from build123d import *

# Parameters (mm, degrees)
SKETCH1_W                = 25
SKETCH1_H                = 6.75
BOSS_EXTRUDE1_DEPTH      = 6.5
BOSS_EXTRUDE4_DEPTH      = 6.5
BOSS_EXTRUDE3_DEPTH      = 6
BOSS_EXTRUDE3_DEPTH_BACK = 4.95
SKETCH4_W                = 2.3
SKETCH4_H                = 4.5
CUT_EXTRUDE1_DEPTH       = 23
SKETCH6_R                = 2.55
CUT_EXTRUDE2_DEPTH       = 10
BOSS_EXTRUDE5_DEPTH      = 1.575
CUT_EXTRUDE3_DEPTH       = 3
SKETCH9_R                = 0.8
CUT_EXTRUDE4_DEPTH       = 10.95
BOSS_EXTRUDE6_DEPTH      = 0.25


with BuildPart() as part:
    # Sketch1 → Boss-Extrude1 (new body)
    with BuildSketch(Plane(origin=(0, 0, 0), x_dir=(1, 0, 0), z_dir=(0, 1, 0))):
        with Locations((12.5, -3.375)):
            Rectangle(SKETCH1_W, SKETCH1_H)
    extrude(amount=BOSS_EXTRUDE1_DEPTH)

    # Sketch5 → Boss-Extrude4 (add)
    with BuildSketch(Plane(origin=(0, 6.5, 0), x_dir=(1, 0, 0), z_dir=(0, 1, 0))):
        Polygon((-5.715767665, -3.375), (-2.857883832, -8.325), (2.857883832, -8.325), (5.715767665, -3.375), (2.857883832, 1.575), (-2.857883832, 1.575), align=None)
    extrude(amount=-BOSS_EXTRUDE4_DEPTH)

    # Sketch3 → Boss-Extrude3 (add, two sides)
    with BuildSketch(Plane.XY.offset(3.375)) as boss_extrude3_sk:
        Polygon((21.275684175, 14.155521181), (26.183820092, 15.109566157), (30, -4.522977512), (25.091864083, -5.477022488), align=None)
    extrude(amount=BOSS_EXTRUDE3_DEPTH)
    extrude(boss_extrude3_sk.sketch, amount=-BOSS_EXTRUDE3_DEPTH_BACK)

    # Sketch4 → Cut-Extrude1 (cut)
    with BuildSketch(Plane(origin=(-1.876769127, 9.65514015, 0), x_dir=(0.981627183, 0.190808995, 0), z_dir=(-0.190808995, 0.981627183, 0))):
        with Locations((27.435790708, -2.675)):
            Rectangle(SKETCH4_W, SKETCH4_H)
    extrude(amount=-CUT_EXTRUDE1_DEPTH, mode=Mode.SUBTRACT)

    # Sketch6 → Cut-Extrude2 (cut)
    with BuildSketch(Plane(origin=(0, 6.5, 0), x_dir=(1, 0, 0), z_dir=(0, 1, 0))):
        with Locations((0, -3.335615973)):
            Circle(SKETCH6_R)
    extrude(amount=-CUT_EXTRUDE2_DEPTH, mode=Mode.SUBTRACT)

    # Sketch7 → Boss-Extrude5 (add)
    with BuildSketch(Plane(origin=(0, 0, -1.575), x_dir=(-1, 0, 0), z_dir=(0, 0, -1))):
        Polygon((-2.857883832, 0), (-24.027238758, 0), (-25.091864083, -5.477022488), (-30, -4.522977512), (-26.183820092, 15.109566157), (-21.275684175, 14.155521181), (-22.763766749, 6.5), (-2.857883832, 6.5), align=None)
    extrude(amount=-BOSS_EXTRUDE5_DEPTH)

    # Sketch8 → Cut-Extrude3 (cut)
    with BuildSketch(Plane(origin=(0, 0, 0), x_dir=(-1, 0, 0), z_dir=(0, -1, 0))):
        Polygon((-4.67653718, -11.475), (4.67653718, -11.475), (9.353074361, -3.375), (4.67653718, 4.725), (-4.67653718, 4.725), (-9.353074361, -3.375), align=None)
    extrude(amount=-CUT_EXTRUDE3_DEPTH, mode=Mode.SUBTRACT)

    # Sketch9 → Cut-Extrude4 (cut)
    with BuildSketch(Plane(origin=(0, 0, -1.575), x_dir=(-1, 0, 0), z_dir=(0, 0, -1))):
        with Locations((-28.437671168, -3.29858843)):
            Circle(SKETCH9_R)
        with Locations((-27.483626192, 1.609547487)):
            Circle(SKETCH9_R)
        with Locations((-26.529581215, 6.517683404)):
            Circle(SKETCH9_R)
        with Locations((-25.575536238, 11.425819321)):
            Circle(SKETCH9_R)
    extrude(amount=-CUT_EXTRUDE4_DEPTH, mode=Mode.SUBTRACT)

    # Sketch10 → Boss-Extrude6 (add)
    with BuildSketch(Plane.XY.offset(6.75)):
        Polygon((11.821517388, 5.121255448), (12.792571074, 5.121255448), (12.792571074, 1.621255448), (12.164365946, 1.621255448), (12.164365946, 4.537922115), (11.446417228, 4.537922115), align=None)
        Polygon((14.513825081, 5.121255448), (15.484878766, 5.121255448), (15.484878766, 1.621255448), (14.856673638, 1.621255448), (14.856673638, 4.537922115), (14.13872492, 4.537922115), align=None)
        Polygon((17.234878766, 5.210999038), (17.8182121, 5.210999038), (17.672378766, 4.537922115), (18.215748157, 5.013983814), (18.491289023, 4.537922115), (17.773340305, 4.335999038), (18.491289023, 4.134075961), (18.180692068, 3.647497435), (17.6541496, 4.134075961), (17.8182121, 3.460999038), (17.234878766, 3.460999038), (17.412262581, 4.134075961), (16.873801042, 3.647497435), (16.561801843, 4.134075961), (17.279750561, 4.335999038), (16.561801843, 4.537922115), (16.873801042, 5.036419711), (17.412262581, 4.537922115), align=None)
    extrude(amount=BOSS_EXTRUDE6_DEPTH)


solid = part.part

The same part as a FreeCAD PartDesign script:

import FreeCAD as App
import Part
import Sketcher
from FreeCAD import Vector
Q = App.Units.Quantity

doc = App.newDocument("Part")
params = doc.addObject("Spreadsheet::Sheet", "Params")
for row, (alias, value) in enumerate([
    ("sketch1_width", "25 mm"),
    ("sketch1_height", "6.75 mm"),
    ("pad1_length", "6.5 mm"),
    ("pad2_length", "6.5 mm"),
    ("sketch3_length", "5 mm"),
    ("sketch3_length2", "20 mm"),
    ("pad3_length", "6 mm"),
    ("pad3_length2", "4.95 mm"),
    ("sketch4_width", "2.3 mm"),
    ("sketch4_height", "4.5 mm"),
    ("pocket1_length", "23 mm"),
    ("sketch5_diameter", "5.1 mm"),
    ("pocket2_length", "10 mm"),
    ("sketch6_length", "5 mm"),
    ("sketch6_length2", "20 mm"),
    ("sketch6_height", "6.5 mm"),
    ("pad4_length", "1.575 mm"),
    ("pocket3_length", "3 mm"),
    ("sketch8_diameter", "1.6 mm"),
    ("pocket4_length", "10.95 mm"),
    ("sketch9_height", "3.5 mm"),
    ("pad5_length", "0.25 mm"),
], start=1):
    params.set(f"A{row}", alias)
    params.set(f"B{row}", "=" + value)
    params.setAlias(f"B{row}", alias)

body = doc.addObject("PartDesign::Body", "Body")

sketch1 = doc.addObject("Sketcher::SketchObject", "Sketch")
body.addObject(sketch1)
sketch1.AttachmentSupport = (doc.XZ_Plane, [""])
sketch1.MapMode = "FlatFace"
sketch1.addGeometry(Part.LineSegment(Vector(0, 0, 0), Vector(0, 7, 0)), False)
sketch1.addGeometry(Part.LineSegment(Vector(0, 7, 0), Vector(25, 7, 0)), False)
sketch1.addGeometry(Part.LineSegment(Vector(25, 7, 0), Vector(25, 0, 0)), False)
sketch1.addGeometry(Part.LineSegment(Vector(25, 0, 0), Vector(0, 0, 0)), False)
sketch1.addConstraint(Sketcher.Constraint("Coincident", 0, 2, 1, 1))
sketch1.addConstraint(Sketcher.Constraint("Coincident", 1, 2, 2, 1))
sketch1.addConstraint(Sketcher.Constraint("Coincident", 2, 2, 3, 1))
sketch1.addConstraint(Sketcher.Constraint("Coincident", 3, 2, 0, 1))
sketch1.addConstraint(Sketcher.Constraint("Vertical", 0))
sketch1.addConstraint(Sketcher.Constraint("Horizontal", 1))
sketch1.addConstraint(Sketcher.Constraint("Vertical", 2))
sketch1.addConstraint(Sketcher.Constraint("Horizontal", 3))
sketch1.addConstraint(Sketcher.Constraint("Coincident", 3, 2, -1, 1))
sketch1.addConstraint(Sketcher.Constraint("DistanceX", 1, 1, 1, 2, Q("25 mm")))
sketch1.addConstraint(Sketcher.Constraint("DistanceY", 0, 1, 0, 2, Q("6.75 mm")))
sketch1.setExpression("Constraints[9]", "Params.sketch1_width")
sketch1.setExpression("Constraints[10]", "Params.sketch1_height")
pad1 = doc.addObject("PartDesign::Pad", "Pad")
body.addObject(pad1)
pad1.Profile = sketch1
pad1.setExpression("Length", "Params.pad1_length")
pad1.Reversed = True

sketch2 = doc.addObject("Sketcher::SketchObject", "Sketch001")
body.addObject(sketch2)
sketch2.AttachmentSupport = (doc.XZ_Plane, [""])
sketch2.MapMode = "FlatFace"
sketch2.AttachmentOffset = App.Placement(Vector(0, 0, -6.5), App.Rotation())
sketch2.addGeometry(Part.LineSegment(Vector(-6, 3, 0), Vector(-3, 8, 0)), False)
sketch2.addGeometry(Part.LineSegment(Vector(-3, 8, 0), Vector(3, 8, 0)), False)
sketch2.addGeometry(Part.LineSegment(Vector(3, 8, 0), Vector(6, 3, 0)), False)
sketch2.addGeometry(Part.LineSegment(Vector(6, 3, 0), Vector(3, -2, 0)), False)
sketch2.addGeometry(Part.LineSegment(Vector(3, -2, 0), Vector(-3, -2, 0)), False)
sketch2.addGeometry(Part.LineSegment(Vector(-3, -2, 0), Vector(-6, 3, 0)), False)
sketch2.addConstraint(Sketcher.Constraint("Coincident", 0, 2, 1, 1))
sketch2.addConstraint(Sketcher.Constraint("Coincident", 1, 2, 2, 1))
sketch2.addConstraint(Sketcher.Constraint("Coincident", 2, 2, 3, 1))
sketch2.addConstraint(Sketcher.Constraint("Coincident", 3, 2, 4, 1))
sketch2.addConstraint(Sketcher.Constraint("Coincident", 4, 2, 5, 1))
sketch2.addConstraint(Sketcher.Constraint("Coincident", 5, 2, 0, 1))
sketch2.addConstraint(Sketcher.Constraint("Horizontal", 1))
sketch2.addConstraint(Sketcher.Constraint("Horizontal", 4))
sketch2.addConstraint(Sketcher.Constraint("Symmetric", 2, 2, 5, 2, -2))
sketch2.addConstraint(Sketcher.Constraint("Parallel", 0, 3))
sketch2.addConstraint(Sketcher.Constraint("Parallel", 2, 5))
sketch2.addConstraint(Sketcher.Constraint("Vertical", 1, 2, 3, 2))
sketch2.addConstraint(Sketcher.Constraint("Vertical", 0, 2, 4, 2))
sketch2.addConstraint(Sketcher.Constraint("Angle", 0, Q("60 deg")))
sketch2.addConstraint(Sketcher.Constraint("DistanceY", 3, 2, 1, 2, Q("9.9 mm")))
sketch2.addConstraint(Sketcher.Constraint("DistanceY", -1, 1, 0, 2, Q("8.325 mm")))
sketch2.addConstraint(Sketcher.Constraint("DistanceX", 1, 1, 1, 2, Q("5.715768 mm")))
pad2 = doc.addObject("PartDesign::Pad", "Pad001")
body.addObject(pad2)
pad2.Profile = sketch2
pad2.setExpression("Length", "Params.pad2_length")

sketch3 = doc.addObject("Sketcher::SketchObject", "Sketch002")
body.addObject(sketch3)
sketch3.AttachmentSupport = (doc.XY_Plane, [""])
sketch3.MapMode = "FlatFace"
sketch3.AttachmentOffset = App.Placement(Vector(0, 0, 3.375), App.Rotation())
sketch3.addGeometry(Part.LineSegment(Vector(26.2, 15.1, 0), Vector(21.3, 14.2, 0)), False)
sketch3.addGeometry(Part.LineSegment(Vector(21.3, 14.2, 0), Vector(25.1, -5.5, 0)), False)
sketch3.addGeometry(Part.LineSegment(Vector(25.1, -5.5, 0), Vector(30, -4.5, 0)), False)
sketch3.addGeometry(Part.LineSegment(Vector(30, -4.5, 0), Vector(26.2, 15.1, 0)), False)
sketch3.addConstraint(Sketcher.Constraint("Coincident", 0, 2, 1, 1))
sketch3.addConstraint(Sketcher.Constraint("Coincident", 1, 2, 2, 1))
sketch3.addConstraint(Sketcher.Constraint("Coincident", 2, 2, 3, 1))
sketch3.addConstraint(Sketcher.Constraint("Coincident", 3, 2, 0, 1))
sketch3.addConstraint(Sketcher.Constraint("Perpendicular", 0, 1))
sketch3.addConstraint(Sketcher.Constraint("Perpendicular", 1, 2))
sketch3.addConstraint(Sketcher.Constraint("Perpendicular", 2, 3))
sketch3.addConstraint(Sketcher.Constraint("Angle", 0, Q("-169 deg")))
sketch3.addConstraint(Sketcher.Constraint("Distance", 0, Q("5 mm")))
sketch3.addConstraint(Sketcher.Constraint("Distance", 1, Q("20 mm")))
sketch3.addConstraint(Sketcher.Constraint("DistanceX", -1, 1, 2, 2, Q("30 mm")))
sketch3.addConstraint(Sketcher.Constraint("DistanceY", -1, 1, 0, 2, Q("14.155521 mm")))
sketch3.setExpression("Constraints[8]", "Params.sketch3_length")
sketch3.setExpression("Constraints[9]", "Params.sketch3_length2")
pad3 = doc.addObject("PartDesign::Pad", "Pad002")
body.addObject(pad3)
pad3.Profile = sketch3
pad3.Type = "TwoLengths"
pad3.setExpression("Length", "Params.pad3_length")
pad3.setExpression("Length2", "Params.pad3_length2")

sketch4 = doc.addObject("Sketcher::SketchObject", "Sketch003")
body.addObject(sketch4)
sketch4.Placement = App.Placement(Vector(-1.876769, 9.65514, 0), App.Rotation(Vector(0.981627184, 0.190808995, 0), Vector(0, 0, -1.000000001), Vector(-0.190808995, 0.981627184, 0), "ZXY"))
sketch4.addGeometry(Part.LineSegment(Vector(26.3, -0.4, 0), Vector(26.3, -4.9, 0)), False)
sketch4.addGeometry(Part.LineSegment(Vector(26.3, -4.9, 0), Vector(28.6, -4.9, 0)), False)
sketch4.addGeometry(Part.LineSegment(Vector(28.6, -4.9, 0), Vector(28.6, -0.4, 0)), False)
sketch4.addGeometry(Part.LineSegment(Vector(28.6, -0.4, 0), Vector(26.3, -0.4, 0)), False)
sketch4.addConstraint(Sketcher.Constraint("Coincident", 0, 2, 1, 1))
sketch4.addConstraint(Sketcher.Constraint("Coincident", 1, 2, 2, 1))
sketch4.addConstraint(Sketcher.Constraint("Coincident", 2, 2, 3, 1))
sketch4.addConstraint(Sketcher.Constraint("Coincident", 3, 2, 0, 1))
sketch4.addConstraint(Sketcher.Constraint("Vertical", 0))
sketch4.addConstraint(Sketcher.Constraint("Horizontal", 1))
sketch4.addConstraint(Sketcher.Constraint("Vertical", 2))
sketch4.addConstraint(Sketcher.Constraint("Horizontal", 3))
sketch4.addConstraint(Sketcher.Constraint("DistanceX", 1, 1, 1, 2, Q("2.3 mm")))
sketch4.addConstraint(Sketcher.Constraint("DistanceY", 0, 2, 0, 1, Q("4.5 mm")))
sketch4.addConstraint(Sketcher.Constraint("DistanceY", 0, 2, -1, 1, Q("4.925 mm")))
sketch4.addConstraint(Sketcher.Constraint("DistanceX", -1, 1, 0, 2, Q("26.285791 mm")))
sketch4.setExpression("Constraints[8]", "Params.sketch4_width")
sketch4.setExpression("Constraints[9]", "Params.sketch4_height")
pocket1 = doc.addObject("PartDesign::Pocket", "Pocket")
body.addObject(pocket1)
pocket1.Profile = sketch4
pocket1.setExpression("Length", "Params.pocket1_length")

sketch5 = doc.addObject("Sketcher::SketchObject", "Sketch004")
body.addObject(sketch5)
sketch5.AttachmentSupport = (doc.XZ_Plane, [""])
sketch5.MapMode = "FlatFace"
sketch5.AttachmentOffset = App.Placement(Vector(0, 0, -6.5), App.Rotation())
sketch5.addGeometry(Part.Circle(Vector(0, 3.3, 0), Vector(0, 0, 1), 2.5), False)
sketch5.addConstraint(Sketcher.Constraint("PointOnObject", 0, 3, -2))
sketch5.addConstraint(Sketcher.Constraint("Diameter", 0, Q("5.1 mm")))
sketch5.addConstraint(Sketcher.Constraint("DistanceY", -1, 1, 0, 3, Q("3.335616 mm")))
sketch5.setExpression("Constraints[1]", "Params.sketch5_diameter")
pocket2 = doc.addObject("PartDesign::Pocket", "Pocket001")
body.addObject(pocket2)
pocket2.Profile = sketch5
pocket2.setExpression("Length", "Params.pocket2_length")
pocket2.Reversed = True

sketch6 = doc.addObject("Sketcher::SketchObject", "Sketch005")
body.addObject(sketch6)
sketch6.AttachmentSupport = (doc.XY_Plane, [""])
sketch6.MapMode = "FlatFace"
sketch6.AttachmentOffset = App.Placement(Vector(0, 0, -1.575), App.Rotation())
sketch6.addGeometry(Part.LineSegment(Vector(24, 0, 0), Vector(2.9, 0, 0)), False)
sketch6.addGeometry(Part.LineSegment(Vector(2.9, 0, 0), Vector(2.9, 6.5, 0)), False)
sketch6.addGeometry(Part.LineSegment(Vector(2.9, 6.5, 0), Vector(22.8, 6.5, 0)), False)
sketch6.addGeometry(Part.LineSegment(Vector(22.8, 6.5, 0), Vector(21.3, 14.2, 0)), False)
sketch6.addGeometry(Part.LineSegment(Vector(21.3, 14.2, 0), Vector(26.2, 15.1, 0)), False)
sketch6.addGeometry(Part.LineSegment(Vector(26.2, 15.1, 0), Vector(30, -4.5, 0)), False)
sketch6.addGeometry(Part.LineSegment(Vector(30, -4.5, 0), Vector(25.1, -5.5, 0)), False)
sketch6.addGeometry(Part.LineSegment(Vector(25.1, -5.5, 0), Vector(24, 0, 0)), False)
sketch6.addConstraint(Sketcher.Constraint("Coincident", 0, 2, 1, 1))
sketch6.addConstraint(Sketcher.Constraint("Coincident", 1, 2, 2, 1))
sketch6.addConstraint(Sketcher.Constraint("Coincident", 2, 2, 3, 1))
sketch6.addConstraint(Sketcher.Constraint("Coincident", 3, 2, 4, 1))
sketch6.addConstraint(Sketcher.Constraint("Coincident", 4, 2, 5, 1))
sketch6.addConstraint(Sketcher.Constraint("Coincident", 5, 2, 6, 1))
sketch6.addConstraint(Sketcher.Constraint("Coincident", 6, 2, 7, 1))
sketch6.addConstraint(Sketcher.Constraint("Coincident", 7, 2, 0, 1))
sketch6.addConstraint(Sketcher.Constraint("Horizontal", 0))
sketch6.addConstraint(Sketcher.Constraint("Vertical", 1))
sketch6.addConstraint(Sketcher.Constraint("Horizontal", 2))
sketch6.addConstraint(Sketcher.Constraint("PointOnObject", 0, 2, -1))
sketch6.addConstraint(Sketcher.Constraint("Perpendicular", 3, 4))
sketch6.addConstraint(Sketcher.Constraint("Perpendicular", 4, 5))
sketch6.addConstraint(Sketcher.Constraint("Perpendicular", 5, 6))
sketch6.addConstraint(Sketcher.Constraint("Perpendicular", 6, 7))
sketch6.addConstraint(Sketcher.Constraint("Equal", 4, 6))
sketch6.addConstraint(Sketcher.Constraint("Angle", 3, Q("101 deg")))
sketch6.addConstraint(Sketcher.Constraint("Distance", 4, Q("5 mm")))
sketch6.addConstraint(Sketcher.Constraint("Distance", 5, Q("20 mm")))
sketch6.addConstraint(Sketcher.Constraint("DistanceY", 1, 1, 1, 2, Q("6.5 mm")))
sketch6.addConstraint(Sketcher.Constraint("DistanceX", -1, 1, 5, 2, Q("30 mm")))
sketch6.addConstraint(Sketcher.Constraint("DistanceX", 1, 2, 3, 2, Q("18.4178 mm")))
sketch6.addConstraint(Sketcher.Constraint("DistanceX", 0, 2, 0, 1, Q("21.169355 mm")))
sketch6.setExpression("Constraints[18]", "Params.sketch6_length")
sketch6.setExpression("Constraints[19]", "Params.sketch6_length2")
sketch6.setExpression("Constraints[20]", "Params.sketch6_height")
pad4 = doc.addObject("PartDesign::Pad", "Pad003")
body.addObject(pad4)
pad4.Profile = sketch6
pad4.setExpression("Length", "Params.pad4_length")

sketch7 = doc.addObject("Sketcher::SketchObject", "Sketch006")
body.addObject(sketch7)
sketch7.AttachmentSupport = (doc.XZ_Plane, [""])
sketch7.MapMode = "FlatFace"
sketch7.addGeometry(Part.LineSegment(Vector(5, 11, 0), Vector(-5, 11, 0)), False)
sketch7.addGeometry(Part.LineSegment(Vector(-5, 11, 0), Vector(-9, 3, 0)), False)
sketch7.addGeometry(Part.LineSegment(Vector(-9, 3, 0), Vector(-5, -5, 0)), False)
sketch7.addGeometry(Part.LineSegment(Vector(-5, -5, 0), Vector(5, -5, 0)), False)
sketch7.addGeometry(Part.LineSegment(Vector(5, -5, 0), Vector(9, 3, 0)), False)
sketch7.addGeometry(Part.LineSegment(Vector(9, 3, 0), Vector(5, 11, 0)), False)
sketch7.addConstraint(Sketcher.Constraint("Coincident", 0, 2, 1, 1))
sketch7.addConstraint(Sketcher.Constraint("Coincident", 1, 2, 2, 1))
sketch7.addConstraint(Sketcher.Constraint("Coincident", 2, 2, 3, 1))
sketch7.addConstraint(Sketcher.Constraint("Coincident", 3, 2, 4, 1))
sketch7.addConstraint(Sketcher.Constraint("Coincident", 4, 2, 5, 1))
sketch7.addConstraint(Sketcher.Constraint("Coincident", 5, 2, 0, 1))
sketch7.addConstraint(Sketcher.Constraint("Horizontal", 0))
sketch7.addConstraint(Sketcher.Constraint("Horizontal", 3))
sketch7.addConstraint(Sketcher.Constraint("Symmetric", 1, 2, 4, 2, -2))
sketch7.addConstraint(Sketcher.Constraint("Parallel", 1, 4))
sketch7.addConstraint(Sketcher.Constraint("Parallel", 2, 5))
sketch7.addConstraint(Sketcher.Constraint("Vertical", 0, 2, 2, 2))
sketch7.addConstraint(Sketcher.Constraint("Vertical", 3, 2, 5, 2))
sketch7.addConstraint(Sketcher.Constraint("Angle", 1, Q("-120 deg")))
sketch7.addConstraint(Sketcher.Constraint("DistanceY", 1, 2, 0, 2, Q("8.1 mm")))
sketch7.addConstraint(Sketcher.Constraint("DistanceY", -1, 1, 0, 2, Q("11.475 mm")))
sketch7.addConstraint(Sketcher.Constraint("DistanceX", 0, 2, 0, 1, Q("9.353074 mm")))
pocket3 = doc.addObject("PartDesign::Pocket", "Pocket002")
body.addObject(pocket3)
pocket3.Profile = sketch7
pocket3.setExpression("Length", "Params.pocket3_length")

sketch8 = doc.addObject("Sketcher::SketchObject", "Sketch007")
body.addObject(sketch8)
sketch8.AttachmentSupport = (doc.XY_Plane, [""])
sketch8.MapMode = "FlatFace"
sketch8.AttachmentOffset = App.Placement(Vector(0, 0, -1.575), App.Rotation())
sketch8.addGeometry(Part.Circle(Vector(28.4, -3.3, 0), Vector(0, 0, 1), 0.8), False)
sketch8.addGeometry(Part.Circle(Vector(27.5, 1.6, 0), Vector(0, 0, 1), 0.8), False)
sketch8.addGeometry(Part.Circle(Vector(26.5, 6.5, 0), Vector(0, 0, 1), 0.8), False)
sketch8.addGeometry(Part.Circle(Vector(25.6, 11.4, 0), Vector(0, 0, 1), 0.8), False)
sketch8.addConstraint(Sketcher.Constraint("Equal", 0, 1))
sketch8.addConstraint(Sketcher.Constraint("Equal", 1, 2))
sketch8.addConstraint(Sketcher.Constraint("Equal", 2, 3))
sketch8.addConstraint(Sketcher.Constraint("Diameter", 0, Q("1.6 mm")))
sketch8.addConstraint(Sketcher.Constraint("DistanceX", -1, 1, 0, 3, Q("28.437671 mm")))
sketch8.addConstraint(Sketcher.Constraint("DistanceY", 0, 3, -1, 1, Q("3.298588 mm")))
sketch8.addConstraint(Sketcher.Constraint("DistanceX", -1, 1, 2, 3, Q("26.529581 mm")))
sketch8.addConstraint(Sketcher.Constraint("DistanceY", -1, 1, 3, 3, Q("11.425819 mm")))
sketch8.addConstraint(Sketcher.Constraint("DistanceY", 0, 3, 2, 3, Q("9.816272 mm")))
sketch8.addConstraint(Sketcher.Constraint("DistanceX", 3, 3, 1, 3, Q("1.90809 mm")))
sketch8.addConstraint(Sketcher.Constraint("DistanceY", 1, 3, 3, 3, Q("9.816272 mm")))
sketch8.addConstraint(Sketcher.Constraint("DistanceX", -1, 1, 1, 3, Q("27.483626 mm")))
sketch8.setExpression("Constraints[3]", "Params.sketch8_diameter")
pocket4 = doc.addObject("PartDesign::Pocket", "Pocket003")
body.addObject(pocket4)
pocket4.Profile = sketch8
pocket4.setExpression("Length", "Params.pocket4_length")
pocket4.Reversed = True

sketch9 = doc.addObject("Sketcher::SketchObject", "Sketch008")
body.addObject(sketch9)
sketch9.AttachmentSupport = (doc.XY_Plane, [""])
sketch9.MapMode = "FlatFace"
sketch9.AttachmentOffset = App.Placement(Vector(0, 0, 6.75), App.Rotation())
sketch9.addGeometry(Part.LineSegment(Vector(12.8, 5.1, 0), Vector(11.8, 5.1, 0)), False)
sketch9.addGeometry(Part.LineSegment(Vector(11.8, 5.1, 0), Vector(11.4, 4.5, 0)), False)
sketch9.addGeometry(Part.LineSegment(Vector(11.4, 4.5, 0), Vector(12.2, 4.5, 0)), False)
sketch9.addGeometry(Part.LineSegment(Vector(12.2, 4.5, 0), Vector(12.2, 1.6, 0)), False)
sketch9.addGeometry(Part.LineSegment(Vector(12.2, 1.6, 0), Vector(12.8, 1.6, 0)), False)
sketch9.addGeometry(Part.LineSegment(Vector(12.8, 1.6, 0), Vector(12.8, 5.1, 0)), False)
sketch9.addGeometry(Part.LineSegment(Vector(15.5, 5.1, 0), Vector(14.5, 5.1, 0)), False)
sketch9.addGeometry(Part.LineSegment(Vector(14.5, 5.1, 0), Vector(14.1, 4.5, 0)), False)
sketch9.addGeometry(Part.LineSegment(Vector(14.1, 4.5, 0), Vector(14.9, 4.5, 0)), False)
sketch9.addGeometry(Part.LineSegment(Vector(14.9, 4.5, 0), Vector(14.9, 1.6, 0)), False)
sketch9.addGeometry(Part.LineSegment(Vector(14.9, 1.6, 0), Vector(15.5, 1.6, 0)), False)
sketch9.addGeometry(Part.LineSegment(Vector(15.5, 1.6, 0), Vector(15.5, 5.1, 0)), False)
sketch9.addGeometry(Part.LineSegment(Vector(17.8, 5.2, 0), Vector(17.2, 5.2, 0)), False)
sketch9.addGeometry(Part.LineSegment(Vector(17.2, 5.2, 0), Vector(17.4, 4.5, 0)), False)
sketch9.addGeometry(Part.LineSegment(Vector(17.4, 4.5, 0), Vector(16.9, 5, 0)), False)
sketch9.addGeometry(Part.LineSegment(Vector(16.9, 5, 0), Vector(16.6, 4.5, 0)), False)
sketch9.addGeometry(Part.LineSegment(Vector(16.6, 4.5, 0), Vector(17.3, 4.3, 0)), False)
sketch9.addGeometry(Part.LineSegment(Vector(17.3, 4.3, 0), Vector(16.6, 4.1, 0)), False)
sketch9.addGeometry(Part.LineSegment(Vector(16.6, 4.1, 0), Vector(16.9, 3.6, 0)), False)
sketch9.addGeometry(Part.LineSegment(Vector(16.9, 3.6, 0), Vector(17.4, 4.1, 0)), False)
sketch9.addGeometry(Part.LineSegment(Vector(17.4, 4.1, 0), Vector(17.2, 3.5, 0)), False)
sketch9.addGeometry(Part.LineSegment(Vector(17.2, 3.5, 0), Vector(17.8, 3.5, 0)), False)
sketch9.addGeometry(Part.LineSegment(Vector(17.8, 3.5, 0), Vector(17.7, 4.1, 0)), False)
sketch9.addGeometry(Part.LineSegment(Vector(17.7, 4.1, 0), Vector(18.2, 3.6, 0)), False)
sketch9.addGeometry(Part.LineSegment(Vector(18.2, 3.6, 0), Vector(18.5, 4.1, 0)), False)
sketch9.addGeometry(Part.LineSegment(Vector(18.5, 4.1, 0), Vector(17.8, 4.3, 0)), False)
sketch9.addGeometry(Part.LineSegment(Vector(17.8, 4.3, 0), Vector(18.5, 4.5, 0)), False)
sketch9.addGeometry(Part.LineSegment(Vector(18.5, 4.5, 0), Vector(18.2, 5, 0)), False)
sketch9.addGeometry(Part.LineSegment(Vector(18.2, 5, 0), Vector(17.7, 4.5, 0)), False)
sketch9.addGeometry(Part.LineSegment(Vector(17.7, 4.5, 0), Vector(17.8, 5.2, 0)), False)
sketch9.addConstraint(Sketcher.Constraint("Coincident", 0, 2, 1, 1))
sketch9.addConstraint(Sketcher.Constraint("Coincident", 1, 2, 2, 1))
sketch9.addConstraint(Sketcher.Constraint("Coincident", 2, 2, 3, 1))
sketch9.addConstraint(Sketcher.Constraint("Coincident", 3, 2, 4, 1))
sketch9.addConstraint(Sketcher.Constraint("Coincident", 4, 2, 5, 1))
sketch9.addConstraint(Sketcher.Constraint("Coincident", 5, 2, 0, 1))
sketch9.addConstraint(Sketcher.Constraint("Coincident", 6, 2, 7, 1))
sketch9.addConstraint(Sketcher.Constraint("Coincident", 7, 2, 8, 1))
sketch9.addConstraint(Sketcher.Constraint("Coincident", 8, 2, 9, 1))
sketch9.addConstraint(Sketcher.Constraint("Coincident", 9, 2, 10, 1))
sketch9.addConstraint(Sketcher.Constraint("Coincident", 10, 2, 11, 1))
sketch9.addConstraint(Sketcher.Constraint("Coincident", 11, 2, 6, 1))
sketch9.addConstraint(Sketcher.Constraint("Coincident", 12, 2, 13, 1))
sketch9.addConstraint(Sketcher.Constraint("Coincident", 13, 2, 14, 1))
sketch9.addConstraint(Sketcher.Constraint("Coincident", 14, 2, 15, 1))
sketch9.addConstraint(Sketcher.Constraint("Coincident", 15, 2, 16, 1))
sketch9.addConstraint(Sketcher.Constraint("Coincident", 16, 2, 17, 1))
sketch9.addConstraint(Sketcher.Constraint("Coincident", 17, 2, 18, 1))
sketch9.addConstraint(Sketcher.Constraint("Coincident", 18, 2, 19, 1))
sketch9.addConstraint(Sketcher.Constraint("Coincident", 19, 2, 20, 1))
sketch9.addConstraint(Sketcher.Constraint("Coincident", 20, 2, 21, 1))
sketch9.addConstraint(Sketcher.Constraint("Coincident", 21, 2, 22, 1))
sketch9.addConstraint(Sketcher.Constraint("Coincident", 22, 2, 23, 1))
sketch9.addConstraint(Sketcher.Constraint("Coincident", 23, 2, 24, 1))
sketch9.addConstraint(Sketcher.Constraint("Coincident", 24, 2, 25, 1))
sketch9.addConstraint(Sketcher.Constraint("Coincident", 25, 2, 26, 1))
sketch9.addConstraint(Sketcher.Constraint("Coincident", 26, 2, 27, 1))
sketch9.addConstraint(Sketcher.Constraint("Coincident", 27, 2, 28, 1))
sketch9.addConstraint(Sketcher.Constraint("Coincident", 28, 2, 29, 1))
sketch9.addConstraint(Sketcher.Constraint("Coincident", 29, 2, 12, 1))
sketch9.addConstraint(Sketcher.Constraint("Horizontal", 0))
sketch9.addConstraint(Sketcher.Constraint("Horizontal", 2))
sketch9.addConstraint(Sketcher.Constraint("Vertical", 3))
sketch9.addConstraint(Sketcher.Constraint("Horizontal", 4))
sketch9.addConstraint(Sketcher.Constraint("Vertical", 5))
sketch9.addConstraint(Sketcher.Constraint("Horizontal", 6))
sketch9.addConstraint(Sketcher.Constraint("Horizontal", 8))
sketch9.addConstraint(Sketcher.Constraint("Vertical", 9))
sketch9.addConstraint(Sketcher.Constraint("Horizontal", 10))
sketch9.addConstraint(Sketcher.Constraint("Vertical", 11))
sketch9.addConstraint(Sketcher.Constraint("Horizontal", 12))
sketch9.addConstraint(Sketcher.Constraint("Horizontal", 21))
sketch9.addConstraint(Sketcher.Constraint("Parallel", 1, 7))
sketch9.addConstraint(Sketcher.Constraint("Parallel", 16, 25))
sketch9.addConstraint(Sketcher.Constraint("Parallel", 17, 26))
sketch9.addConstraint(Sketcher.Constraint("Horizontal", 5, 2, 6, 2))
sketch9.addConstraint(Sketcher.Constraint("Horizontal", 2, 2, 7, 2))
sketch9.addConstraint(Sketcher.Constraint("Horizontal", 4, 2, 9, 2))
sketch9.addConstraint(Sketcher.Constraint("Horizontal", 8, 2, 13, 2))
sketch9.addConstraint(Sketcher.Constraint("Horizontal", 13, 2, 15, 2))
sketch9.addConstraint(Sketcher.Constraint("Horizontal", 17, 2, 19, 2))
sketch9.addConstraint(Sketcher.Constraint("Horizontal", 19, 2, 22, 2))
sketch9.addConstraint(Sketcher.Constraint("Horizontal", 18, 2, 23, 2))
sketch9.addConstraint(Sketcher.Constraint("Horizontal", 22, 2, 24, 2))
sketch9.addConstraint(Sketcher.Constraint("Horizontal", 16, 2, 25, 2))
sketch9.addConstraint(Sketcher.Constraint("Horizontal", 15, 2, 26, 2))
sketch9.addConstraint(Sketcher.Constraint("Horizontal", 26, 2, 28, 2))
sketch9.addConstraint(Sketcher.Constraint("Vertical", 15, 2, 17, 2))
sketch9.addConstraint(Sketcher.Constraint("Vertical", 14, 2, 18, 2))
sketch9.addConstraint(Sketcher.Constraint("Vertical", 13, 2, 19, 2))
sketch9.addConstraint(Sketcher.Constraint("Vertical", 12, 2, 20, 2))
sketch9.addConstraint(Sketcher.Constraint("Vertical", 24, 2, 26, 2))
sketch9.addConstraint(Sketcher.Constraint("Vertical", 21, 2, 29, 2))
sketch9.addConstraint(Sketcher.Constraint("Equal", 0, 6))
sketch9.addConstraint(Sketcher.Constraint("Equal", 2, 8))
sketch9.addConstraint(Sketcher.Constraint("Equal", 13, 20))
sketch9.addConstraint(Sketcher.Constraint("DistanceY", 5, 1, 5, 2, Q("3.5 mm")))
sketch9.addConstraint(Sketcher.Constraint("DistanceX", 11, 2, 12, 2, Q("1.75 mm")))
sketch9.addConstraint(Sketcher.Constraint("DistanceY", -1, 1, 12, 2, Q("5.210999 mm")))
sketch9.addConstraint(Sketcher.Constraint("DistanceY", -1, 1, 16, 2, Q("4.335999 mm")))
sketch9.addConstraint(Sketcher.Constraint("DistanceX", 15, 2, 14, 2, Q("0.311999 mm")))
sketch9.addConstraint(Sketcher.Constraint("DistanceX", 2, 1, 2, 2, Q("0.717949 mm")))
sketch9.addConstraint(Sketcher.Constraint("DistanceX", -1, 1, 14, 2, Q("16.873801 mm")))
sketch9.addConstraint(Sketcher.Constraint("DistanceX", 1, 2, 0, 2, Q("0.3751 mm")))
sketch9.addConstraint(Sketcher.Constraint("DistanceY", 18, 2, 16, 2, Q("0.688502 mm")))
sketch9.addConstraint(Sketcher.Constraint("DistanceX", 16, 2, 22, 2, Q("0.374399 mm")))
sketch9.addConstraint(Sketcher.Constraint("Distance", 13, Q("0.696059 mm")))
sketch9.addConstraint(Sketcher.Constraint("Distance", 19, Q("0.725741 mm")))
sketch9.addConstraint(Sketcher.Constraint("Distance", 23, Q("0.716942 mm")))
sketch9.addConstraint(Sketcher.Constraint("Distance", 24, Q("0.57726 mm")))
sketch9.addConstraint(Sketcher.Constraint("DistanceX", 0, 2, 0, 1, Q("0.971054 mm")))
sketch9.addConstraint(Sketcher.Constraint("DistanceX", 12, 2, 12, 1, Q("0.583333 mm")))
sketch9.addConstraint(Sketcher.Constraint("DistanceY", 3, 2, 3, 1, Q("2.916667 mm")))
sketch9.addConstraint(Sketcher.Constraint("DistanceX", -1, 1, 4, 2, Q("12.792571 mm")))
sketch9.addConstraint(Sketcher.Constraint("DistanceX", -1, 1, 10, 2, Q("15.484879 mm")))
sketch9.addConstraint(Sketcher.Constraint("DistanceY", -1, 1, 14, 2, Q("5.03642 mm")))
sketch9.addConstraint(Sketcher.Constraint("DistanceX", -1, 1, 16, 2, Q("17.279751 mm")))
sketch9.addConstraint(Sketcher.Constraint("DistanceX", -1, 1, 27, 2, Q("18.215748 mm")))
sketch9.addConstraint(Sketcher.Constraint("DistanceX", -1, 1, 28, 2, Q("17.672379 mm")))
sketch9.addConstraint(Sketcher.Constraint("DistanceY", 26, 2, 27, 2, Q("0.476062 mm")))
sketch9.setExpression("Constraints[66]", "Params.sketch9_height")
pad5 = doc.addObject("PartDesign::Pad", "Pad004")
body.addObject(pad5)
pad5.Profile = sketch9
pad5.setExpression("Length", "Params.pad5_length")

doc.recompute()
